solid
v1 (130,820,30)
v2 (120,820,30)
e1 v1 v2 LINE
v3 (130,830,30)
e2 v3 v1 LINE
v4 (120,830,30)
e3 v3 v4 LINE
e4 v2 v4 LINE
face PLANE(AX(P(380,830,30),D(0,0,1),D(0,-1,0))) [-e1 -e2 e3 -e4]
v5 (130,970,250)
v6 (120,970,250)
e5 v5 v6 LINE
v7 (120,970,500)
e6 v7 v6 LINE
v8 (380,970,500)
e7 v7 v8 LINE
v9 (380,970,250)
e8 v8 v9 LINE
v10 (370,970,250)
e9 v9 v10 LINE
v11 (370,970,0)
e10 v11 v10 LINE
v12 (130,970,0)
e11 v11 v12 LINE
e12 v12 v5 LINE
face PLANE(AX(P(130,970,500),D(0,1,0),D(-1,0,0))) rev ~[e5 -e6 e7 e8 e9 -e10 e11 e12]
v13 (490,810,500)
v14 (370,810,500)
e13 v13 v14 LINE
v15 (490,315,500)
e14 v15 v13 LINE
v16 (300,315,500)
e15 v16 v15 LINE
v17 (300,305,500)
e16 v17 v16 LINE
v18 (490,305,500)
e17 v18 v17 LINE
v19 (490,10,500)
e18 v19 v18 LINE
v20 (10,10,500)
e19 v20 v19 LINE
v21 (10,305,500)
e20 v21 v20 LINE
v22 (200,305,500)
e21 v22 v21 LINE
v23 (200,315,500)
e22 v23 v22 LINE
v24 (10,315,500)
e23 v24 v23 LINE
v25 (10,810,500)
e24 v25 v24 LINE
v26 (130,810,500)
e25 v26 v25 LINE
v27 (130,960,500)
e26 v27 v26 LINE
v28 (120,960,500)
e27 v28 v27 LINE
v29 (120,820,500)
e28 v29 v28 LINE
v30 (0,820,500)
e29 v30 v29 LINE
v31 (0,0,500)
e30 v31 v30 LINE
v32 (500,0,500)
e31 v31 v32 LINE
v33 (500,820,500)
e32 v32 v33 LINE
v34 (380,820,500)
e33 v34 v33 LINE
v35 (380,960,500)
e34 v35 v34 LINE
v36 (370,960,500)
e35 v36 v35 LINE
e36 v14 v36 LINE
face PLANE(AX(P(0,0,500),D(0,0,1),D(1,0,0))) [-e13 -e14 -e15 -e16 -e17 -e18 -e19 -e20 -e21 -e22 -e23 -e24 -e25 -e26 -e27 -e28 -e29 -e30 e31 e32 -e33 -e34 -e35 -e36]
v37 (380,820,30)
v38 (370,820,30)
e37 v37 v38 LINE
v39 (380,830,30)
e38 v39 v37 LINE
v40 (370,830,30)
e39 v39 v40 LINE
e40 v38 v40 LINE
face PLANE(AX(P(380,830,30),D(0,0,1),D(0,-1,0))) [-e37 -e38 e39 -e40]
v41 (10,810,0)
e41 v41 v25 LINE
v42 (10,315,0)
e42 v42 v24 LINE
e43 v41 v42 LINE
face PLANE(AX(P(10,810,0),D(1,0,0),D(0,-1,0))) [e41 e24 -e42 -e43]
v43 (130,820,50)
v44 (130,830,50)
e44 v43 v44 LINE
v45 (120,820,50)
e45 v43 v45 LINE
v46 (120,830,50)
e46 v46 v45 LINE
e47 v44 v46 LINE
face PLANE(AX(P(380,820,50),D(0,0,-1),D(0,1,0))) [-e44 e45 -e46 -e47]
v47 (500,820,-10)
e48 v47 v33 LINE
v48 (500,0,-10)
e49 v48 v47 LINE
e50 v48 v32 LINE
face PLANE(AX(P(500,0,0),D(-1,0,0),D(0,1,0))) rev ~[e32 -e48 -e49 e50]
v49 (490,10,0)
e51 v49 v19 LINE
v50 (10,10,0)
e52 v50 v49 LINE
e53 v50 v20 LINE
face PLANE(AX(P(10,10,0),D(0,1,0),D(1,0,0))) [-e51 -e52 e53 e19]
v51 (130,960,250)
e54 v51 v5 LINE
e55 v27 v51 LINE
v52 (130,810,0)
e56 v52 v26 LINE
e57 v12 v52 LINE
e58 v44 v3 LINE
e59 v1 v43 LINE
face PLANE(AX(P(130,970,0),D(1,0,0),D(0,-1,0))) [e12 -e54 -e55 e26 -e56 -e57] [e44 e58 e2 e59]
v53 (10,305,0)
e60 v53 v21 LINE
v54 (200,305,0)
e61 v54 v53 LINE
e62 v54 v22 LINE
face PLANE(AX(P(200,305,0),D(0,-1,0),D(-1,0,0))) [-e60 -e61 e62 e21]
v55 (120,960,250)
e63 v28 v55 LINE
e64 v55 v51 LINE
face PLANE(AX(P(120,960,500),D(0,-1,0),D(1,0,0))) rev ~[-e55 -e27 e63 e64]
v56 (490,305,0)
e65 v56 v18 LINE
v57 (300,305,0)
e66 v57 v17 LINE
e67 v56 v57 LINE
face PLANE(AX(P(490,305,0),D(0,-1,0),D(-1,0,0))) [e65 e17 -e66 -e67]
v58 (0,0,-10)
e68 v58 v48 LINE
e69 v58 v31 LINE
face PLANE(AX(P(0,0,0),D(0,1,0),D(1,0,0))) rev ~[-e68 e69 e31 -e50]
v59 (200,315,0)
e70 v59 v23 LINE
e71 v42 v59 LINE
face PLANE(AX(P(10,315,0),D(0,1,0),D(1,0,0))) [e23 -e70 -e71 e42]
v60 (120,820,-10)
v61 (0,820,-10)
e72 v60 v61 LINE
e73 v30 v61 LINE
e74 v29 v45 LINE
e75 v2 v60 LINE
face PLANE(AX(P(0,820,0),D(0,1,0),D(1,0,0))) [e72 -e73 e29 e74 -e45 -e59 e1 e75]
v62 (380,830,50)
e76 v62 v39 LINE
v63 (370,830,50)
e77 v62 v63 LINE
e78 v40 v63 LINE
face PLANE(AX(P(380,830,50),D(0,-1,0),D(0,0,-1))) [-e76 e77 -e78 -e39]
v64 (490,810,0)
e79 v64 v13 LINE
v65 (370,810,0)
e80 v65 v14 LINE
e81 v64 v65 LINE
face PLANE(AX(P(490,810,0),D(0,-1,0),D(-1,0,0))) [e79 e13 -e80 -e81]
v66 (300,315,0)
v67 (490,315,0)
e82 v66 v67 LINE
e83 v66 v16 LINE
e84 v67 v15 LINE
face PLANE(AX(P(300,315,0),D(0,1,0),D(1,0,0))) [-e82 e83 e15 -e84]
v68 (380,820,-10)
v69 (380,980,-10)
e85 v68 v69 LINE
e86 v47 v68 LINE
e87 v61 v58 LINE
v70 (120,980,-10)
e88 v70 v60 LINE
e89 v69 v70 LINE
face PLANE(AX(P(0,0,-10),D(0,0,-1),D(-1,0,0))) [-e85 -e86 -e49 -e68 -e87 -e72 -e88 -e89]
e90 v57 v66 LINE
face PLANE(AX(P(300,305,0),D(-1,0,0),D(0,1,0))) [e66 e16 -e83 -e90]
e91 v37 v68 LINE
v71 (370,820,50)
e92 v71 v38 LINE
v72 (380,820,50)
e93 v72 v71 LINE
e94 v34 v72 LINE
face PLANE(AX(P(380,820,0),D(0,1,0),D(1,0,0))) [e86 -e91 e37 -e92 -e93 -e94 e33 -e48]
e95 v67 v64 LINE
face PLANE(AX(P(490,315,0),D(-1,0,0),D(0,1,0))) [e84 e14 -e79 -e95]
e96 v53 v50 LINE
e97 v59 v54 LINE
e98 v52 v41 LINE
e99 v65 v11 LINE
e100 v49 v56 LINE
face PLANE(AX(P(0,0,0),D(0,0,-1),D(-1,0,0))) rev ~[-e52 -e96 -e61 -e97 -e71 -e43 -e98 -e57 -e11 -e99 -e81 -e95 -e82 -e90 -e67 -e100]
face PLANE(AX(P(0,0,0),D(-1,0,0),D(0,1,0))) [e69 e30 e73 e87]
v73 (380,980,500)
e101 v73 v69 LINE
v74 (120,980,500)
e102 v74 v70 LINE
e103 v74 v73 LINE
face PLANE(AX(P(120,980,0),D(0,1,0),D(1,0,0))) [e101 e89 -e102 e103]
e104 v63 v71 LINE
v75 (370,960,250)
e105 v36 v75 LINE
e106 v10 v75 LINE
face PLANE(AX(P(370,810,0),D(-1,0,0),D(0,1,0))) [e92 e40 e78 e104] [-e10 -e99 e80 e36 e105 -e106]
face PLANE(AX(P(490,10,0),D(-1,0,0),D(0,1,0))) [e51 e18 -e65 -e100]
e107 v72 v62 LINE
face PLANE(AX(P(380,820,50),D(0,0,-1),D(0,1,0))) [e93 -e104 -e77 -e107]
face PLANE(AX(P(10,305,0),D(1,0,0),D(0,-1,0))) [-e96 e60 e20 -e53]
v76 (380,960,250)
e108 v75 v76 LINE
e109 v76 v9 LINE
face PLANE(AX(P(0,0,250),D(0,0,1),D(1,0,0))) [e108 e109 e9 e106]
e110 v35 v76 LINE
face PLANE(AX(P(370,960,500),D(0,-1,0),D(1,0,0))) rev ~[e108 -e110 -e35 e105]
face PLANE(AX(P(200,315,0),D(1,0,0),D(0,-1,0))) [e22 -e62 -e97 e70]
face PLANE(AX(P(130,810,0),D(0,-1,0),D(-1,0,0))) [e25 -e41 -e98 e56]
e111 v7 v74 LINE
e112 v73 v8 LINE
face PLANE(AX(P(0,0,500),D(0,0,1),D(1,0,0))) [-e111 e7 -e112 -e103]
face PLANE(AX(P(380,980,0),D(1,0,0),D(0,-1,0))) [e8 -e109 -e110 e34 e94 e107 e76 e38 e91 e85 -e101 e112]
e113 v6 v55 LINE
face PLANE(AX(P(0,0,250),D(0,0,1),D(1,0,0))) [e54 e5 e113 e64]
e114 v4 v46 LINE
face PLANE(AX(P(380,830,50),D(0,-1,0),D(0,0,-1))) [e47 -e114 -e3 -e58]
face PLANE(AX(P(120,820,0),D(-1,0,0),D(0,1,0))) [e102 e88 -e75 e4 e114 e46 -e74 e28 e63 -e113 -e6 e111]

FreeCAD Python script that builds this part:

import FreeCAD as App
import Part
import Sketcher
Q = App.Units.Quantity


def add_polygon(sketch, points):
    """Adds a closed chain of lines whose ends are joined by coincident constraints."""
    first, n = sketch.GeometryCount, len(points)
    for a, b in zip(points, points[1:] + points[:1]):
        sketch.addGeometry(Part.LineSegment(App.Vector(*a, 0), App.Vector(*b, 0)), False)
    for i in range(n):
        sketch.addConstraint(Sketcher.Constraint("Coincident", first + i, 2, first + (i + 1) % n, 1))

doc = App.newDocument("Part")
params = doc.addObject("Spreadsheet::Sheet", "Params")
for row, (alias, value) in enumerate([
    ("sketch1_width", "500 mm"),
    ("sketch1_width2", "240 mm"),
    ("sketch1_height", "820 mm"),
    ("sketch1_height2", "160 mm"),
    ("sketch1_height3", "295 mm"),
    ("pad1_length", "500 mm"),
    ("sketch2_width", "120 mm"),
    ("sketch2_width2", "500 mm"),
    ("sketch2_height", "160 mm"),
    ("sketch2_height2", "820 mm"),
    ("pad2_length", "10 mm"),
    ("sketch3_width", "10 mm"),
    ("pocket1_length", "250 mm"),
    ("sketch4_width", "10 mm"),
    ("sketch4_height", "20 mm"),
], start=1):
    params.set(f"A{row}", alias)
    params.set(f"B{row}", "=" + value)
    params.setAlias(f"B{row}", alias)

body = doc.addObject("PartDesign::Body", "Body")

sketch1 = body.newObject("Sketcher::SketchObject", "Sketch")
sketch1.AttachmentSupport = (doc.getObject("XY_Plane"), [""])
sketch1.MapMode = "FlatFace"
add_polygon(sketch1, [(0, 820), (0, 0), (500, 0), (500, 820), (380, 820), (380, 980), (120, 980), (120, 820)])
add_polygon(sketch1, [(490, 10), (10, 10), (10, 305), (200, 305), (200, 315), (10, 315), (10, 810), (130, 810), (130, 970), (370, 970), (370, 810), (490, 810), (490, 315), (300, 315), (300, 305), (490, 305)])
sketch1.addConstraint(Sketcher.Constraint("Vertical", 0))
sketch1.addConstraint(Sketcher.Constraint("Horizontal", 1))
sketch1.addConstraint(Sketcher.Constraint("Vertical", 2))
sketch1.addConstraint(Sketcher.Constraint("Horizontal", 3))
sketch1.addConstraint(Sketcher.Constraint("Vertical", 4))
sketch1.addConstraint(Sketcher.Constraint("Horizontal", 5))
sketch1.addConstraint(Sketcher.Constraint("Vertical", 6))
sketch1.addConstraint(Sketcher.Constraint("Horizontal", 7))
sketch1.addConstraint(Sketcher.Constraint("Horizontal", 8))
sketch1.addConstraint(Sketcher.Constraint("Vertical", 9))
sketch1.addConstraint(Sketcher.Constraint("Horizontal", 10))
sketch1.addConstraint(Sketcher.Constraint("Vertical", 11))
sketch1.addConstraint(Sketcher.Constraint("Horizontal", 12))
sketch1.addConstraint(Sketcher.Constraint("Vertical", 13))
sketch1.addConstraint(Sketcher.Constraint("Horizontal", 14))
sketch1.addConstraint(Sketcher.Constraint("Vertical", 15))
sketch1.addConstraint(Sketcher.Constraint("Horizontal", 16))
sketch1.addConstraint(Sketcher.Constraint("Vertical", 17))
sketch1.addConstraint(Sketcher.Constraint("Horizontal", 18))
sketch1.addConstraint(Sketcher.Constraint("Vertical", 19))
sketch1.addConstraint(Sketcher.Constraint("Horizontal", 20))
sketch1.addConstraint(Sketcher.Constraint("Vertical", 21))
sketch1.addConstraint(Sketcher.Constraint("Horizontal", 22))
sketch1.addConstraint(Sketcher.Constraint("Vertical", 23))
sketch1.addConstraint(Sketcher.Constraint("Coincident", 0, 2, -1, 1))
sketch1.addConstraint(Sketcher.Constraint("Horizontal", 3, 2, 6, 2))
sketch1.addConstraint(Sketcher.Constraint("Horizontal", 14, 2, 17, 2))
sketch1.addConstraint(Sketcher.Constraint("Horizontal", 12, 2, 19, 2))
sketch1.addConstraint(Sketcher.Constraint("Horizontal", 10, 2, 21, 2))
sketch1.addConstraint(Sketcher.Constraint("Vertical", 9, 2, 12, 2))
sketch1.addConstraint(Sketcher.Constraint("Vertical", 19, 2, 22, 2))
sketch1.addConstraint(Sketcher.Constraint("Equal", 3, 7))
sketch1.addConstraint(Sketcher.Constraint("Equal", 7, 14))
sketch1.addConstraint(Sketcher.Constraint("Equal", 14, 18))
sketch1.addConstraint(Sketcher.Constraint("Equal", 12, 20))
sketch1.addConstraint(Sketcher.Constraint("Equal", 6, 15))
sketch1.addConstraint(Sketcher.Constraint("DistanceX", 1, 1, 1, 2, Q("500 mm")))
sketch1.addConstraint(Sketcher.Constraint("DistanceX", 16, 1, 16, 2, Q("240 mm")))
sketch1.addConstraint(Sketcher.Constraint("DistanceY", 0, 2, 0, 1, Q("820 mm")))
sketch1.addConstraint(Sketcher.Constraint("DistanceY", 4, 1, 4, 2, Q("160 mm")))
sketch1.addConstraint(Sketcher.Constraint("DistanceY", 9, 1, 9, 2, Q("295 mm")))
sketch1.addConstraint(Sketcher.Constraint("DistanceY", 11, 1, 11, 2, Q("10 mm")))
sketch1.addConstraint(Sketcher.Constraint("DistanceX", -1, 1, 8, 2, Q("10 mm")))
sketch1.addConstraint(Sketcher.Constraint("DistanceY", -1, 1, 8, 2, Q("10 mm")))
sketch1.addConstraint(Sketcher.Constraint("DistanceY", 13, 2, 7, 2, Q("10 mm")))
sketch1.addConstraint(Sketcher.Constraint("DistanceX", 16, 2, 4, 2, Q("10 mm")))
sketch1.addConstraint(Sketcher.Constraint("DistanceX", 11, 2, 20, 2, Q("100 mm")))
sketch1.setExpression("Constraints[60]", "Params.sketch1_width")
sketch1.setExpression("Constraints[61]", "Params.sketch1_width2")
sketch1.setExpression("Constraints[62]", "Params.sketch1_height")
sketch1.setExpression("Constraints[63]", "Params.sketch1_height2")
sketch1.setExpression("Constraints[64]", "Params.sketch1_height3")
pad1 = body.newObject("PartDesign::Pad", "Pad")
pad1.Profile = sketch1
pad1.setExpression("Length", "Params.pad1_length")

sketch2 = body.newObject("Sketcher::SketchObject", "Sketch001")
sketch2.AttachmentSupport = (doc.getObject("XY_Plane"), [""])
sketch2.MapMode = "FlatFace"
add_polygon(sketch2, [(380, 980), (380, 820), (500, 820), (500, 0), (0, 0), (0, 820), (120, 820), (120, 980)])
sketch2.addConstraint(Sketcher.Constraint("Vertical", 0))
sketch2.addConstraint(Sketcher.Constraint("Horizontal", 1))
sketch2.addConstraint(Sketcher.Constraint("Vertical", 2))
sketch2.addConstraint(Sketcher.Constraint("Horizontal", 3))
sketch2.addConstraint(Sketcher.Constraint("Vertical", 4))
sketch2.addConstraint(Sketcher.Constraint("Horizontal", 5))
sketch2.addConstraint(Sketcher.Constraint("Vertical", 6))
sketch2.addConstraint(Sketcher.Constraint("Horizontal", 7))
sketch2.addConstraint(Sketcher.Constraint("Coincident", 3, 2, -1, 1))
sketch2.addConstraint(Sketcher.Constraint("Horizontal", 1, 2, 4, 2))
sketch2.addConstraint(Sketcher.Constraint("Equal", 1, 5))
sketch2.addConstraint(Sketcher.Constraint("DistanceX", 1, 1, 1, 2, Q("120 mm")))
sketch2.addConstraint(Sketcher.Constraint("DistanceX", 3, 2, 3, 1, Q("500 mm")))
sketch2.addConstraint(Sketcher.Constraint("DistanceY", 0, 2, 0, 1, Q("160 mm")))
sketch2.addConstraint(Sketcher.Constraint("DistanceY", 2, 2, 2, 1, Q("820 mm")))
sketch2.setExpression("Constraints[19]", "Params.sketch2_width")
sketch2.setExpression("Constraints[20]", "Params.sketch2_width2")
sketch2.setExpression("Constraints[21]", "Params.sketch2_height")
sketch2.setExpression("Constraints[22]", "Params.sketch2_height2")
pad2 = body.newObject("PartDesign::Pad", "Pad001")
pad2.Profile = sketch2
pad2.setExpression("Length", "Params.pad2_length")
pad2.Reversed = True

sketch3 = body.newObject("Sketcher::SketchObject", "Sketch002")
sketch3.AttachmentSupport = (doc.getObject("XY_Plane"), [""])
sketch3.MapMode = "FlatFace"
sketch3.AttachmentOffset = App.Placement(App.Vector(0, 0, 500), App.Rotation())
add_polygon(sketch3, [(370, 960), (380, 960), (380, 970), (370, 970)])
add_polygon(sketch3, [(120, 960), (130, 960), (130, 970), (120, 970)])
sketch3.addConstraint(Sketcher.Constraint("Horizontal", 0))
sketch3.addConstraint(Sketcher.Constraint("Vertical", 1))
sketch3.addConstraint(Sketcher.Constraint("Horizontal", 2))
sketch3.addConstraint(Sketcher.Constraint("Vertical", 3))
sketch3.addConstraint(Sketcher.Constraint("Horizontal", 4))
sketch3.addConstraint(Sketcher.Constraint("Vertical", 5))
sketch3.addConstraint(Sketcher.Constraint("Horizontal", 6))
sketch3.addConstraint(Sketcher.Constraint("Vertical", 7))
sketch3.addConstraint(Sketcher.Constraint("Horizontal", 3, 2, 4, 2))
sketch3.addConstraint(Sketcher.Constraint("Horizontal", 2, 2, 5, 2))
sketch3.addConstraint(Sketcher.Constraint("Equal", 2, 4))
sketch3.addConstraint(Sketcher.Constraint("Equal", 6, 1))
sketch3.addConstraint(Sketcher.Constraint("DistanceX", 0, 1, 0, 2, Q("10 mm")))
sketch3.addConstraint(Sketcher.Constraint("DistanceX", -1, 1, 0, 2, Q("380 mm")))
sketch3.addConstraint(Sketcher.Constraint("DistanceY", -1, 1, 0, 2, Q("960 mm")))
sketch3.addConstraint(Sketcher.Constraint("DistanceX", -1, 1, 4, 2, Q("130 mm")))
sketch3.setExpression("Constraints[20]", "Params.sketch3_width")
pocket1 = body.newObject("PartDesign::Pocket", "Pocket")
pocket1.Profile = sketch3
pocket1.setExpression("Length", "Params.pocket1_length")

sketch4 = body.newObject("Sketcher::SketchObject", "Sketch003")
sketch4.AttachmentSupport = (doc.getObject("YZ_Plane"), [""])
sketch4.MapMode = "FlatFace"
sketch4.AttachmentOffset = App.Placement(App.Vector(0, 0, 380), App.Rotation())
add_polygon(sketch4, [(820, 50), (820, 30), (830, 30), (830, 50)])
sketch4.addConstraint(Sketcher.Constraint("Vertical", 0))
sketch4.addConstraint(Sketcher.Constraint("Horizontal", 1))
sketch4.addConstraint(Sketcher.Constraint("Vertical", 2))
sketch4.addConstraint(Sketcher.Constraint("Horizontal", 3))
sketch4.addConstraint(Sketcher.Constraint("DistanceX", 1, 1, 1, 2, Q("10 mm")))
sketch4.addConstraint(Sketcher.Constraint("DistanceY", 0, 2, 0, 1, Q("20 mm")))
sketch4.addConstraint(Sketcher.Constraint("DistanceY", -1, 1, 0, 2, Q("30 mm")))
sketch4.addConstraint(Sketcher.Constraint("DistanceX", -1, 1, 0, 2, Q("820 mm")))
sketch4.setExpression("Constraints[8]", "Params.sketch4_width")
sketch4.setExpression("Constraints[9]", "Params.sketch4_height")
pocket2 = body.newObject("PartDesign::Pocket", "Pocket001")
pocket2.Profile = sketch4
pocket2.Type = "ThroughAll"

doc.recompute()
